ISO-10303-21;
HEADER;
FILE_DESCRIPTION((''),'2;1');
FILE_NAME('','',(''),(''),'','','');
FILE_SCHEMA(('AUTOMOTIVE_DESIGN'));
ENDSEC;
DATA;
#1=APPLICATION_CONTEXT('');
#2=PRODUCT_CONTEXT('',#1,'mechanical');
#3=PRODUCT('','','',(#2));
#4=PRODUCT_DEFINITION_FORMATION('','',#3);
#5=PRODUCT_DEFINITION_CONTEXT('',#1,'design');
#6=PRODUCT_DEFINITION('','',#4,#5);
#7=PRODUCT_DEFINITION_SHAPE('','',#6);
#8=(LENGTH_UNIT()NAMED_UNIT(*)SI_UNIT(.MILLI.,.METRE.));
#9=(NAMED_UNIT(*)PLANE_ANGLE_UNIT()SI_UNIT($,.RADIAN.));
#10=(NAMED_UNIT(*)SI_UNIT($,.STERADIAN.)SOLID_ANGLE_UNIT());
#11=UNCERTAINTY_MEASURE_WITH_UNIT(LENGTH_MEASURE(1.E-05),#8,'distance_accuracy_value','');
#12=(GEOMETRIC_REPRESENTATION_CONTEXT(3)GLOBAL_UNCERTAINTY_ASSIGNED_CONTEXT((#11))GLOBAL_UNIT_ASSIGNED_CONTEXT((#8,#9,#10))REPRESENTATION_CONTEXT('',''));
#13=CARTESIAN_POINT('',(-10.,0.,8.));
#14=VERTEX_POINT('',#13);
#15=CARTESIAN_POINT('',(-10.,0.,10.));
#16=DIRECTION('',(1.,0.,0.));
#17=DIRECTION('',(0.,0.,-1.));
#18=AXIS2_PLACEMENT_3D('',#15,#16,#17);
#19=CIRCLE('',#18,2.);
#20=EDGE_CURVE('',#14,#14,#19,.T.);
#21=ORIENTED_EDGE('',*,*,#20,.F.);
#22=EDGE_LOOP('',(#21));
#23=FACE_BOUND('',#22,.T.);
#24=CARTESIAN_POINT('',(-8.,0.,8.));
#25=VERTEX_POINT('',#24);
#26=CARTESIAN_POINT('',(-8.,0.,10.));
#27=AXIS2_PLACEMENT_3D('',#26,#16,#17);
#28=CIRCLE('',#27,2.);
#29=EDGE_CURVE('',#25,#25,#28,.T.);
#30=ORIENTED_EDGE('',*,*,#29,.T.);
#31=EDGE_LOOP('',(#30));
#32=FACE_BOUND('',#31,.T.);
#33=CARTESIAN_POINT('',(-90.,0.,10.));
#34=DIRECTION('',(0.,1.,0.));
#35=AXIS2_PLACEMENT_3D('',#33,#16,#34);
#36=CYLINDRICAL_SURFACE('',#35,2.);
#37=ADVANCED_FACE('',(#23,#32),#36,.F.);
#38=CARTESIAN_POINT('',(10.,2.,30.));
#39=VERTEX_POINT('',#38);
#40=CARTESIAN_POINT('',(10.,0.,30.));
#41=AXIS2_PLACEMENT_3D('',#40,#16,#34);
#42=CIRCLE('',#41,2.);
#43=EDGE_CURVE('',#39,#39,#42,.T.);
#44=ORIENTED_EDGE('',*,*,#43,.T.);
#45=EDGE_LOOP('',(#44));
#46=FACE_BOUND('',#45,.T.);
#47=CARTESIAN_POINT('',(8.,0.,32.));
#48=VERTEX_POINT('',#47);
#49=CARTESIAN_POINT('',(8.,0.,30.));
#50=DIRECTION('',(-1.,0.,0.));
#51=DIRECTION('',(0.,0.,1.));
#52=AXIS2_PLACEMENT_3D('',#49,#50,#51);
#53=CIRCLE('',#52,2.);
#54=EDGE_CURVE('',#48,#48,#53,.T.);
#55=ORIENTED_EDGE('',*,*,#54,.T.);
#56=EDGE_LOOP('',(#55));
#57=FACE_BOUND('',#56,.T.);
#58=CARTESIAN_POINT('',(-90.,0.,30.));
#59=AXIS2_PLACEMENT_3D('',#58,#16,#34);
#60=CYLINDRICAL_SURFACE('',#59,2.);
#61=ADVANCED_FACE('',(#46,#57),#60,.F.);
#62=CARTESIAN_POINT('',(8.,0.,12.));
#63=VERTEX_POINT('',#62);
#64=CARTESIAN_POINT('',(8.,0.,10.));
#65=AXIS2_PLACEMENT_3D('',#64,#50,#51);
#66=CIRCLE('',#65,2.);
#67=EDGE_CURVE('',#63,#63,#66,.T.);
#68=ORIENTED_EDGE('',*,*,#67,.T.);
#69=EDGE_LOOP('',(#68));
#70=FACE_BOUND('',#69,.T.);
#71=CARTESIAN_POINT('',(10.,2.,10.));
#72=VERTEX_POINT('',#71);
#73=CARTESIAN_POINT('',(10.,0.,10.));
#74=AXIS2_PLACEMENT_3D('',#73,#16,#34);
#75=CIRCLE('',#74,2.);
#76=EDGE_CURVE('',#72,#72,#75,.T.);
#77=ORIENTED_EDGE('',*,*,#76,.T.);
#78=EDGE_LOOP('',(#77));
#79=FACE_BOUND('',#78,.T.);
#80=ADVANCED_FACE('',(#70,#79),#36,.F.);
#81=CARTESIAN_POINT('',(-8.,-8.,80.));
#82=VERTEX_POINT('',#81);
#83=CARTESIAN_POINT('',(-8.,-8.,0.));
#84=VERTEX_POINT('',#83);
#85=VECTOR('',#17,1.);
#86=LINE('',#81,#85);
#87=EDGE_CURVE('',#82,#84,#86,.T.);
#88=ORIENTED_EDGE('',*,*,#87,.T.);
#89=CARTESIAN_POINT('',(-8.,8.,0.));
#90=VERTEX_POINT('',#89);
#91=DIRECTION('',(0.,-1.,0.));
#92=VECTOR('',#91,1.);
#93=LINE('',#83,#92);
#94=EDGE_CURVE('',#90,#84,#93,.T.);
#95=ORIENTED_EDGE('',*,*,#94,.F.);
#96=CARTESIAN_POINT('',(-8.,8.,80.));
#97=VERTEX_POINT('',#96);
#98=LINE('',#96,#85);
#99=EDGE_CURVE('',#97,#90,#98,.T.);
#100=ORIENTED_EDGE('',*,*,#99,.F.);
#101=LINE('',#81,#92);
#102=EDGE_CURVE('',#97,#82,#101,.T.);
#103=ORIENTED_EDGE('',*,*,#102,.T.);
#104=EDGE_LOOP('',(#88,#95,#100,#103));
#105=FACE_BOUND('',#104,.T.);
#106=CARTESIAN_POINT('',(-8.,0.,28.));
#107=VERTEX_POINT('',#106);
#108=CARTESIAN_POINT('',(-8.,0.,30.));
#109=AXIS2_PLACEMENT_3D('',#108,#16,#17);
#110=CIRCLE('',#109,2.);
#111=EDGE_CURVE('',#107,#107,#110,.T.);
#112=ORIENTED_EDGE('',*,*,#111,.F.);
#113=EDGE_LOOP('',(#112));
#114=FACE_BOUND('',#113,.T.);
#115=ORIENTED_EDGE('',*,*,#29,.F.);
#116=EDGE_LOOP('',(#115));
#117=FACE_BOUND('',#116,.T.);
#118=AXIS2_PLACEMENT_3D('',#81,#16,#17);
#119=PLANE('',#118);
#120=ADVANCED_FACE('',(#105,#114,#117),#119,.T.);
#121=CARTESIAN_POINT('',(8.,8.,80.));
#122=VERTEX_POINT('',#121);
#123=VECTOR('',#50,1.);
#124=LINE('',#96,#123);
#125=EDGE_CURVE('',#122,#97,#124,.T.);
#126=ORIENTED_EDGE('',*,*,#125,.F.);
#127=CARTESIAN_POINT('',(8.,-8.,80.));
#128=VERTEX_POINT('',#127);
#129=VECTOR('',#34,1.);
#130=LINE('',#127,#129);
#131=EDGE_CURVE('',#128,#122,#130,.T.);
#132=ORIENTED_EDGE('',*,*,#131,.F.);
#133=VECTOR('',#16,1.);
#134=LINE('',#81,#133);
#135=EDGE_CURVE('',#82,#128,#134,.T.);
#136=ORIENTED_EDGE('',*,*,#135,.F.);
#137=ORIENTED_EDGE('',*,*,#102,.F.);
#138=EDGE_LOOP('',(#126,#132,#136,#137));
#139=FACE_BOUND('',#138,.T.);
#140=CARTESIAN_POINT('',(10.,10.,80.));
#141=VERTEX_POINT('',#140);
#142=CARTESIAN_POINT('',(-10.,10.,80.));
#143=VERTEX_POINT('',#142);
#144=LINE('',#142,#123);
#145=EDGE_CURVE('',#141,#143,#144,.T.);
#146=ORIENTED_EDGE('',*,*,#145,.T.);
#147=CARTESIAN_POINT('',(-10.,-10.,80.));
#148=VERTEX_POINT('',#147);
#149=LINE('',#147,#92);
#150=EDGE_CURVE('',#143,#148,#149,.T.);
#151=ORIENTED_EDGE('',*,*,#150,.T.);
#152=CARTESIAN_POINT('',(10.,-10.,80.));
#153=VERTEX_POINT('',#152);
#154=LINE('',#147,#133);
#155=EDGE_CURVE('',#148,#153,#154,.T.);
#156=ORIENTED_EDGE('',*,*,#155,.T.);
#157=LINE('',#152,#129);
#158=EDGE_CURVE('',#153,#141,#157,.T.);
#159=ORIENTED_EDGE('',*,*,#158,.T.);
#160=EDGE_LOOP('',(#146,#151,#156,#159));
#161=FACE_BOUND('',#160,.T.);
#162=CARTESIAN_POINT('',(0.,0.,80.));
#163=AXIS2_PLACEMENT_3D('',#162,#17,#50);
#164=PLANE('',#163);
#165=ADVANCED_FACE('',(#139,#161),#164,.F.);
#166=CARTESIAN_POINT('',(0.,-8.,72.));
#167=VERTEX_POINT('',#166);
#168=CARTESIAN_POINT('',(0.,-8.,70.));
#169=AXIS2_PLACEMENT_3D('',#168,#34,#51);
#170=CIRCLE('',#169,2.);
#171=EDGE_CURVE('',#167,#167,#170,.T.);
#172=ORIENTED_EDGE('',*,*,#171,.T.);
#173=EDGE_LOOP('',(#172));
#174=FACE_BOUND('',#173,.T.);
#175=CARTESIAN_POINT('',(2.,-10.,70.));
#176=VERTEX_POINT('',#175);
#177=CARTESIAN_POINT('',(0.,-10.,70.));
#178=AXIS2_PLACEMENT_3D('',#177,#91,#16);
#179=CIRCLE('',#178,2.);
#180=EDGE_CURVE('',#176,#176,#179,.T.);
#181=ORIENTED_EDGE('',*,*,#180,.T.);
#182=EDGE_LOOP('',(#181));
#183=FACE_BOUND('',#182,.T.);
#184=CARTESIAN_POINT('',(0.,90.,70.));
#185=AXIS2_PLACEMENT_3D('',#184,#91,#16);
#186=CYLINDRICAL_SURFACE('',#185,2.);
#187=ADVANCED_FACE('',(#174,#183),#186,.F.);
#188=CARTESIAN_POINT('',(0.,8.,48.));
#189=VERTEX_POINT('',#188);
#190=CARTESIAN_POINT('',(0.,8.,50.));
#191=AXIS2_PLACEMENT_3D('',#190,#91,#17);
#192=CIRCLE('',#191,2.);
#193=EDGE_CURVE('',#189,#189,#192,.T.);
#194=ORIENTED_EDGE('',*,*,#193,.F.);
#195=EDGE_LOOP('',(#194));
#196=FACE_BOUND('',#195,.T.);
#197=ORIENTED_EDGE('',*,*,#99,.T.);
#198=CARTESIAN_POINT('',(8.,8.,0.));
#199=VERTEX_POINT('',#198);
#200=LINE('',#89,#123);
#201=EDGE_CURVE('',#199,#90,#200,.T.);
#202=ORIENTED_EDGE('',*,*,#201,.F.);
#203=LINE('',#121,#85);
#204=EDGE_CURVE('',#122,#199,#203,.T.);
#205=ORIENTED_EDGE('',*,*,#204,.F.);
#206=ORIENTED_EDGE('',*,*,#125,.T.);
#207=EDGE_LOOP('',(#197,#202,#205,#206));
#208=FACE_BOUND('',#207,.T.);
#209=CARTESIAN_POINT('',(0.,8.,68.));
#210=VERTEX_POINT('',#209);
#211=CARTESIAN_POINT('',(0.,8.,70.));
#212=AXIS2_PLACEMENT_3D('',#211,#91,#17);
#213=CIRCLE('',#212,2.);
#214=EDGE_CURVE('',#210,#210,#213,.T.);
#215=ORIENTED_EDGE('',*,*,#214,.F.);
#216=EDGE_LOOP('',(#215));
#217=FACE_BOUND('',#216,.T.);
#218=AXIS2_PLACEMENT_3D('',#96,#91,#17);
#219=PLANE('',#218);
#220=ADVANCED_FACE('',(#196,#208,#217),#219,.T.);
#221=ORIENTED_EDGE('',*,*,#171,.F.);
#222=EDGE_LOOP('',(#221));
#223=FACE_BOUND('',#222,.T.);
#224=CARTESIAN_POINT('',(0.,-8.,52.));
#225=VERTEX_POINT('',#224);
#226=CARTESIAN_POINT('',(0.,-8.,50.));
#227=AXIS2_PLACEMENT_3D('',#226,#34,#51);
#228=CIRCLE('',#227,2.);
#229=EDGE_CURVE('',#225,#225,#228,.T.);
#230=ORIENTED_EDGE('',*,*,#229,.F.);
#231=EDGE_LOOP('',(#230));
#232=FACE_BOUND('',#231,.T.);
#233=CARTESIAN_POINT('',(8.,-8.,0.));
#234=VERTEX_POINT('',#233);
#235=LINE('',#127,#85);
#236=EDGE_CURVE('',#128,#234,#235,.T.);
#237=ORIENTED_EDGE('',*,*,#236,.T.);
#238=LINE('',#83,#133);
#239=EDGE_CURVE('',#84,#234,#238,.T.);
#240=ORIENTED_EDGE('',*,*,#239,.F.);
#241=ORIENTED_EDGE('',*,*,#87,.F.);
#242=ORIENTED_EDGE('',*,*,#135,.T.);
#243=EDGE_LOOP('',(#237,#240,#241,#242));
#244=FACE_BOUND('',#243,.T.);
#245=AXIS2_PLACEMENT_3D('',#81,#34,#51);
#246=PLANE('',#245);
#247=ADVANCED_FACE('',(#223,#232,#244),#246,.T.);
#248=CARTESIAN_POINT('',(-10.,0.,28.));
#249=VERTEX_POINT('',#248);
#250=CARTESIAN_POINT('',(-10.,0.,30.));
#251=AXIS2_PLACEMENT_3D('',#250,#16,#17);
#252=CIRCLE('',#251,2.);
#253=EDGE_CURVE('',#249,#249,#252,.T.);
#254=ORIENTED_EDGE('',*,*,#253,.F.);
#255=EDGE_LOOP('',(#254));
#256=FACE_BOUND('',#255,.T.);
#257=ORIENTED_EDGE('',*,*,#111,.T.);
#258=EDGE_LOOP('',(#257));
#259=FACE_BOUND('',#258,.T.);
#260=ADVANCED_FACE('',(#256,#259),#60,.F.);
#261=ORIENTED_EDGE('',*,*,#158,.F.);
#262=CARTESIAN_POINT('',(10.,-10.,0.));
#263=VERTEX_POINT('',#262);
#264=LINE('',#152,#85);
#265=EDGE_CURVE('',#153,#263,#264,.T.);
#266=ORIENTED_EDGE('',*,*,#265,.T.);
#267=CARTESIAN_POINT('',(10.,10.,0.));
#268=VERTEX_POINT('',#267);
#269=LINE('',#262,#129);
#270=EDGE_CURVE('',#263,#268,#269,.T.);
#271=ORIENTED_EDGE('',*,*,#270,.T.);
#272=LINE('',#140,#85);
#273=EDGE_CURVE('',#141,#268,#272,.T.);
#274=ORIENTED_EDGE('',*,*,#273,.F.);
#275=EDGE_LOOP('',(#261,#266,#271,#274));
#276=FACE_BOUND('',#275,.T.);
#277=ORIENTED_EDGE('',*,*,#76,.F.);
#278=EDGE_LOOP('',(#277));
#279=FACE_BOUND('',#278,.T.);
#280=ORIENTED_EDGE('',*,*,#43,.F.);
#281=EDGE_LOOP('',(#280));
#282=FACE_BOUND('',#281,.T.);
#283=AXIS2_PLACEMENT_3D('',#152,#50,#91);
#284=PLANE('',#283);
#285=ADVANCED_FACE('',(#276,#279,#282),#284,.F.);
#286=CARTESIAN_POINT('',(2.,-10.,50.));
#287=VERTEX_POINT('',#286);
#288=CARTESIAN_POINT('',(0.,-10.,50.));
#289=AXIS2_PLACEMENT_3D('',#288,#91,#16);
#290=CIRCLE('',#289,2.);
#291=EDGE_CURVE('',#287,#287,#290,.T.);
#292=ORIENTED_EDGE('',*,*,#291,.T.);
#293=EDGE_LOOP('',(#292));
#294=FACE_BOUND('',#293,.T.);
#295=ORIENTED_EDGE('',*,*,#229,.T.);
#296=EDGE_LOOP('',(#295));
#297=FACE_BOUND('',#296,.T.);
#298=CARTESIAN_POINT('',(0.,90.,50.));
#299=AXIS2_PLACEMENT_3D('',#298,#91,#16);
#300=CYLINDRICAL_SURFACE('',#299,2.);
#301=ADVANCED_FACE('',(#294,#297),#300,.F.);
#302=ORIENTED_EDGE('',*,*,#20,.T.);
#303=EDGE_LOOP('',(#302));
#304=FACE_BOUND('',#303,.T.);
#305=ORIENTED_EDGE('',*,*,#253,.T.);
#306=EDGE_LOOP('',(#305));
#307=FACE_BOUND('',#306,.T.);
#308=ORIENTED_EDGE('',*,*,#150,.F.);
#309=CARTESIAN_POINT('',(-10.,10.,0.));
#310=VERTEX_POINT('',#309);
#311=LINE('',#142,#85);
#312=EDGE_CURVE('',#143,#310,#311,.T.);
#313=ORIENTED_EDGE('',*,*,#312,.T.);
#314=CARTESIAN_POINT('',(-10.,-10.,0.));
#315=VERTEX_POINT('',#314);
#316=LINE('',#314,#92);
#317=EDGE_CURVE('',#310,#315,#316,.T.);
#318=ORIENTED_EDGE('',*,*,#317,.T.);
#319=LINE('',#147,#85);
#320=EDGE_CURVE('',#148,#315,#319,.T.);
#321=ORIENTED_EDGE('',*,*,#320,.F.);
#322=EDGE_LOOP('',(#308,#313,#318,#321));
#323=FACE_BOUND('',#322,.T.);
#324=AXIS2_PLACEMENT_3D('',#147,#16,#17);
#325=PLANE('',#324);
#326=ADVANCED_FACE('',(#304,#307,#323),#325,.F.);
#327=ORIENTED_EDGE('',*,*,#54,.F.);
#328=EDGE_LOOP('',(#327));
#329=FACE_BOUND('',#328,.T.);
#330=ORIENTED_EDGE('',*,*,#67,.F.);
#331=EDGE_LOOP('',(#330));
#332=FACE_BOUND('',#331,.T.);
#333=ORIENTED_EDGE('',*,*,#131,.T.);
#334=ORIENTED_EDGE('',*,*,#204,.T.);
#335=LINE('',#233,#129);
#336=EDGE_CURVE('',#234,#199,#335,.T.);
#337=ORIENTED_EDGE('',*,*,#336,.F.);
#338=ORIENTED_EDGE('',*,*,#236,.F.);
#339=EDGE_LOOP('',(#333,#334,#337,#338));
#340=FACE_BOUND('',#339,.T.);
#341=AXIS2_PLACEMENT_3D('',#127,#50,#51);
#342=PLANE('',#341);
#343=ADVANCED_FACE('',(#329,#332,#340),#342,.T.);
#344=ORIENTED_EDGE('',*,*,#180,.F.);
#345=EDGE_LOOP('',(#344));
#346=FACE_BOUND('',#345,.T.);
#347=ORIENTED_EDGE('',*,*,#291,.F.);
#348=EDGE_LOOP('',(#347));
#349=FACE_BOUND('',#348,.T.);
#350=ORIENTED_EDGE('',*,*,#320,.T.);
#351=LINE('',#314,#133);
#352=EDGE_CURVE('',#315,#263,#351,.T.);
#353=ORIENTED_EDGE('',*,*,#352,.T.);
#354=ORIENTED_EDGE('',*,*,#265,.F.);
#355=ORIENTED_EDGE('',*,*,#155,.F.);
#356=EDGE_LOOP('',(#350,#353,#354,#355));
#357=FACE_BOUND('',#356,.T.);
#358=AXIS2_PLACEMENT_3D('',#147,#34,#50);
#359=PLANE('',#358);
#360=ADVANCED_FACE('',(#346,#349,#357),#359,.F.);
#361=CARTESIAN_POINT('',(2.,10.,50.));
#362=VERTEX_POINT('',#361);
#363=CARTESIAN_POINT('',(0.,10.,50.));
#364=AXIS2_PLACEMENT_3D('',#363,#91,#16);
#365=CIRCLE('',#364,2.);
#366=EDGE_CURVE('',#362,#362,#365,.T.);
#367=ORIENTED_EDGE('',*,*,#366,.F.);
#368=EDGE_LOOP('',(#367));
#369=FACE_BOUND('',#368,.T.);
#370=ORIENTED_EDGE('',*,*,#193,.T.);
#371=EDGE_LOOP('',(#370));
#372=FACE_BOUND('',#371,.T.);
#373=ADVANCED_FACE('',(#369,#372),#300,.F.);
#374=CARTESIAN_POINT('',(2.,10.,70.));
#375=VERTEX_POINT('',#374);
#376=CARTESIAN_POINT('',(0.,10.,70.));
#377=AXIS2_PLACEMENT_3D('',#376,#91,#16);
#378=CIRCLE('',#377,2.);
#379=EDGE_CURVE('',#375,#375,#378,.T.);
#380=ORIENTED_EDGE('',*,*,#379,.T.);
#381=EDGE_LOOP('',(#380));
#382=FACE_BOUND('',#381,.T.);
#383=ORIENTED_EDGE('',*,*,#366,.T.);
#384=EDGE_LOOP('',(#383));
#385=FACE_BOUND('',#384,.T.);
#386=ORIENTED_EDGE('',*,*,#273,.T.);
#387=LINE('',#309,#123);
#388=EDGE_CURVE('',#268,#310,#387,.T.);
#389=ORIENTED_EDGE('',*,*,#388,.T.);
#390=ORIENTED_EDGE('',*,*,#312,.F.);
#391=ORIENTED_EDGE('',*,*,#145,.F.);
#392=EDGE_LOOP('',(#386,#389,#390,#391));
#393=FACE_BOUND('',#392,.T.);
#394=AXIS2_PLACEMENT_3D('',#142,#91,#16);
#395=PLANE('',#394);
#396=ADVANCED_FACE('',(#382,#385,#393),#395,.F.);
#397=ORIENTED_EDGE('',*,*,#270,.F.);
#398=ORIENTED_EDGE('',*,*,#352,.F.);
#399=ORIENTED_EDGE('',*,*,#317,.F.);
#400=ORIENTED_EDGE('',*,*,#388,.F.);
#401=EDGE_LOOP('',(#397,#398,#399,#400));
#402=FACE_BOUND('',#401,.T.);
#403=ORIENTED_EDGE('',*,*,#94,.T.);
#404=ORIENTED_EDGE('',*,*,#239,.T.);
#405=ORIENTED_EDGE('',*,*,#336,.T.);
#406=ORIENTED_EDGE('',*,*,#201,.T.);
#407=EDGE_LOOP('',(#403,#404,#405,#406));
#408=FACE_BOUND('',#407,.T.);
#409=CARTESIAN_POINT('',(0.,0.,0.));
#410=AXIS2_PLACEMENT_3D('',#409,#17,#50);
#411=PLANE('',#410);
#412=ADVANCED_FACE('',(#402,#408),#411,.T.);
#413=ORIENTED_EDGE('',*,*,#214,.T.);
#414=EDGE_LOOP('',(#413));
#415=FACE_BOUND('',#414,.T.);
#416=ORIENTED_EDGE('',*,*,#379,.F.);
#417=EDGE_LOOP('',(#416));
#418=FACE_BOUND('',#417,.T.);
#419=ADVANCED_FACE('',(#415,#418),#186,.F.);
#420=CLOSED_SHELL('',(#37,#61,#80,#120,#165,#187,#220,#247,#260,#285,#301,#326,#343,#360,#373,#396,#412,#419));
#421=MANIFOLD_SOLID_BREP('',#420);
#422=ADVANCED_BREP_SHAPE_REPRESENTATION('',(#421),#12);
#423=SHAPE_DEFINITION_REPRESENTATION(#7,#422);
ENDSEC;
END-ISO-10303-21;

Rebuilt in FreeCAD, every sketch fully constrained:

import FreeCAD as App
import Part
import Sketcher
from FreeCAD import Vector
Q = App.Units.Quantity

doc = App.newDocument("Part")
params = doc.addObject("Spreadsheet::Sheet", "Params")
for row, (alias, value) in enumerate([
    ("sketch1_width", "20 mm"),
    ("sketch1_width2", "16 mm"),
    ("pad1_length", "80 mm"),
    ("sketch2_diameter", "4 mm"),
    ("pocket1_length", "100 mm"),
    ("sketch3_diameter", "4 mm"),
    ("pocket2_length", "100 mm"),
], start=1):
    params.set(f"A{row}", alias)
    params.set(f"B{row}", "=" + value)
    params.setAlias(f"B{row}", alias)

body = doc.addObject("PartDesign::Body", "Body")

sketch1 = body.newObject("Sketcher::SketchObject", "Sketch")
sketch1.AttachmentSupport = (doc.getObject("XY_Plane"), [""])
sketch1.MapMode = "FlatFace"
sketch1.addGeometry([
    Part.LineSegment(Vector(-10, 10, 0), Vector(-10, -10, 0)),
    Part.LineSegment(Vector(-10, -10, 0), Vector(10, -10, 0)),
    Part.LineSegment(Vector(10, -10, 0), Vector(10, 10, 0)),
    Part.LineSegment(Vector(10, 10, 0), Vector(-10, 10, 0)),
    Part.LineSegment(Vector(8, -8, 0), Vector(-8, -8, 0)),
    Part.LineSegment(Vector(-8, -8, 0), Vector(-8, 8, 0)),
    Part.LineSegment(Vector(-8, 8, 0), Vector(8, 8, 0)),
    Part.LineSegment(Vector(8, 8, 0), Vector(8, -8, 0)),
], False)
sketch1.addConstraint([
    Sketcher.Constraint("Coincident", 0, 2, 1, 1),
    Sketcher.Constraint("Coincident", 1, 2, 2, 1),
    Sketcher.Constraint("Coincident", 2, 2, 3, 1),
    Sketcher.Constraint("Coincident", 3, 2, 0, 1),
    Sketcher.Constraint("Coincident", 4, 2, 5, 1),
    Sketcher.Constraint("Coincident", 5, 2, 6, 1),
    Sketcher.Constraint("Coincident", 6, 2, 7, 1),
    Sketcher.Constraint("Coincident", 7, 2, 4, 1),
    Sketcher.Constraint("Vertical", 0),
    Sketcher.Constraint("Horizontal", 1),
    Sketcher.Constraint("Vertical", 2),
    Sketcher.Constraint("Horizontal", 3),
    Sketcher.Constraint("Horizontal", 4),
    Sketcher.Constraint("Vertical", 5),
    Sketcher.Constraint("Horizontal", 6),
    Sketcher.Constraint("Vertical", 7),
    Sketcher.Constraint("Symmetric", 0, 2, 2, 2, -1, 1),
    Sketcher.Constraint("Symmetric", 4, 2, 6, 2, -1, 1),
    Sketcher.Constraint("Equal", 3, 0),
    Sketcher.Constraint("Equal", 6, 5),
    Sketcher.Constraint("DistanceX", 1, 1, 1, 2, Q("20 mm")),
    Sketcher.Constraint("DistanceX", 4, 2, 4, 1, Q("16 mm")),
])
sketch1.setExpression("Constraints[20]", "Params.sketch1_width")
sketch1.setExpression("Constraints[21]", "Params.sketch1_width2")
pad1 = body.newObject("PartDesign::Pad", "Pad")
pad1.Profile = sketch1
pad1.setExpression("Length", "Params.pad1_length")

sketch2 = body.newObject("Sketcher::SketchObject", "Sketch001")
sketch2.AttachmentSupport = (doc.getObject("YZ_Plane"), [""])
sketch2.MapMode = "FlatFace"
sketch2.AttachmentOffset = App.Placement(Vector(0, 0, 10), App.Rotation())
sketch2.addGeometry([
    Part.Circle(Vector(0, 10, 0), Vector(0, 0, 1), 2),
    Part.Circle(Vector(0, 30, 0), Vector(0, 0, 1), 2),
], False)
sketch2.addConstraint([
    Sketcher.Constraint("Equal", 0, 1),
    Sketcher.Constraint("PointOnObject", 0, 3, -2),
    Sketcher.Constraint("PointOnObject", 1, 3, -2),
    Sketcher.Constraint("Diameter", 0, Q("4 mm")),
    Sketcher.Constraint("DistanceY", -1, 1, 0, 3, Q("10 mm")),
    Sketcher.Constraint("DistanceY", -1, 1, 1, 3, Q("30 mm")),
])
sketch2.setExpression("Constraints[3]", "Params.sketch2_diameter")
pocket1 = body.newObject("PartDesign::Pocket", "Pocket")
pocket1.Profile = sketch2
pocket1.setExpression("Length", "Params.pocket1_length")

sketch3 = body.newObject("Sketcher::SketchObject", "Sketch002")
sketch3.AttachmentSupport = (doc.getObject("XZ_Plane"), [""])
sketch3.MapMode = "FlatFace"
sketch3.AttachmentOffset = App.Placement(Vector(0, 0, 10), App.Rotation())
sketch3.addGeometry([
    Part.Circle(Vector(0, 50, 0), Vector(0, 0, 1), 2),
    Part.Circle(Vector(0, 70, 0), Vector(0, 0, 1), 2),
], False)
sketch3.addConstraint([
    Sketcher.Constraint("Equal", 0, 1),
    Sketcher.Constraint("PointOnObject", 0, 3, -2),
    Sketcher.Constraint("PointOnObject", 1, 3, -2),
    Sketcher.Constraint("Diameter", 0, Q("4 mm")),
    Sketcher.Constraint("DistanceY", -1, 1, 0, 3, Q("50 mm")),
    Sketcher.Constraint("DistanceY", -1, 1, 1, 3, Q("70 mm")),
])
sketch3.setExpression("Constraints[3]", "Params.sketch3_diameter")
pocket2 = body.newObject("PartDesign::Pocket", "Pocket001")
pocket2.Profile = sketch3
pocket2.setExpression("Length", "Params.pocket2_length")

doc.recompute()
